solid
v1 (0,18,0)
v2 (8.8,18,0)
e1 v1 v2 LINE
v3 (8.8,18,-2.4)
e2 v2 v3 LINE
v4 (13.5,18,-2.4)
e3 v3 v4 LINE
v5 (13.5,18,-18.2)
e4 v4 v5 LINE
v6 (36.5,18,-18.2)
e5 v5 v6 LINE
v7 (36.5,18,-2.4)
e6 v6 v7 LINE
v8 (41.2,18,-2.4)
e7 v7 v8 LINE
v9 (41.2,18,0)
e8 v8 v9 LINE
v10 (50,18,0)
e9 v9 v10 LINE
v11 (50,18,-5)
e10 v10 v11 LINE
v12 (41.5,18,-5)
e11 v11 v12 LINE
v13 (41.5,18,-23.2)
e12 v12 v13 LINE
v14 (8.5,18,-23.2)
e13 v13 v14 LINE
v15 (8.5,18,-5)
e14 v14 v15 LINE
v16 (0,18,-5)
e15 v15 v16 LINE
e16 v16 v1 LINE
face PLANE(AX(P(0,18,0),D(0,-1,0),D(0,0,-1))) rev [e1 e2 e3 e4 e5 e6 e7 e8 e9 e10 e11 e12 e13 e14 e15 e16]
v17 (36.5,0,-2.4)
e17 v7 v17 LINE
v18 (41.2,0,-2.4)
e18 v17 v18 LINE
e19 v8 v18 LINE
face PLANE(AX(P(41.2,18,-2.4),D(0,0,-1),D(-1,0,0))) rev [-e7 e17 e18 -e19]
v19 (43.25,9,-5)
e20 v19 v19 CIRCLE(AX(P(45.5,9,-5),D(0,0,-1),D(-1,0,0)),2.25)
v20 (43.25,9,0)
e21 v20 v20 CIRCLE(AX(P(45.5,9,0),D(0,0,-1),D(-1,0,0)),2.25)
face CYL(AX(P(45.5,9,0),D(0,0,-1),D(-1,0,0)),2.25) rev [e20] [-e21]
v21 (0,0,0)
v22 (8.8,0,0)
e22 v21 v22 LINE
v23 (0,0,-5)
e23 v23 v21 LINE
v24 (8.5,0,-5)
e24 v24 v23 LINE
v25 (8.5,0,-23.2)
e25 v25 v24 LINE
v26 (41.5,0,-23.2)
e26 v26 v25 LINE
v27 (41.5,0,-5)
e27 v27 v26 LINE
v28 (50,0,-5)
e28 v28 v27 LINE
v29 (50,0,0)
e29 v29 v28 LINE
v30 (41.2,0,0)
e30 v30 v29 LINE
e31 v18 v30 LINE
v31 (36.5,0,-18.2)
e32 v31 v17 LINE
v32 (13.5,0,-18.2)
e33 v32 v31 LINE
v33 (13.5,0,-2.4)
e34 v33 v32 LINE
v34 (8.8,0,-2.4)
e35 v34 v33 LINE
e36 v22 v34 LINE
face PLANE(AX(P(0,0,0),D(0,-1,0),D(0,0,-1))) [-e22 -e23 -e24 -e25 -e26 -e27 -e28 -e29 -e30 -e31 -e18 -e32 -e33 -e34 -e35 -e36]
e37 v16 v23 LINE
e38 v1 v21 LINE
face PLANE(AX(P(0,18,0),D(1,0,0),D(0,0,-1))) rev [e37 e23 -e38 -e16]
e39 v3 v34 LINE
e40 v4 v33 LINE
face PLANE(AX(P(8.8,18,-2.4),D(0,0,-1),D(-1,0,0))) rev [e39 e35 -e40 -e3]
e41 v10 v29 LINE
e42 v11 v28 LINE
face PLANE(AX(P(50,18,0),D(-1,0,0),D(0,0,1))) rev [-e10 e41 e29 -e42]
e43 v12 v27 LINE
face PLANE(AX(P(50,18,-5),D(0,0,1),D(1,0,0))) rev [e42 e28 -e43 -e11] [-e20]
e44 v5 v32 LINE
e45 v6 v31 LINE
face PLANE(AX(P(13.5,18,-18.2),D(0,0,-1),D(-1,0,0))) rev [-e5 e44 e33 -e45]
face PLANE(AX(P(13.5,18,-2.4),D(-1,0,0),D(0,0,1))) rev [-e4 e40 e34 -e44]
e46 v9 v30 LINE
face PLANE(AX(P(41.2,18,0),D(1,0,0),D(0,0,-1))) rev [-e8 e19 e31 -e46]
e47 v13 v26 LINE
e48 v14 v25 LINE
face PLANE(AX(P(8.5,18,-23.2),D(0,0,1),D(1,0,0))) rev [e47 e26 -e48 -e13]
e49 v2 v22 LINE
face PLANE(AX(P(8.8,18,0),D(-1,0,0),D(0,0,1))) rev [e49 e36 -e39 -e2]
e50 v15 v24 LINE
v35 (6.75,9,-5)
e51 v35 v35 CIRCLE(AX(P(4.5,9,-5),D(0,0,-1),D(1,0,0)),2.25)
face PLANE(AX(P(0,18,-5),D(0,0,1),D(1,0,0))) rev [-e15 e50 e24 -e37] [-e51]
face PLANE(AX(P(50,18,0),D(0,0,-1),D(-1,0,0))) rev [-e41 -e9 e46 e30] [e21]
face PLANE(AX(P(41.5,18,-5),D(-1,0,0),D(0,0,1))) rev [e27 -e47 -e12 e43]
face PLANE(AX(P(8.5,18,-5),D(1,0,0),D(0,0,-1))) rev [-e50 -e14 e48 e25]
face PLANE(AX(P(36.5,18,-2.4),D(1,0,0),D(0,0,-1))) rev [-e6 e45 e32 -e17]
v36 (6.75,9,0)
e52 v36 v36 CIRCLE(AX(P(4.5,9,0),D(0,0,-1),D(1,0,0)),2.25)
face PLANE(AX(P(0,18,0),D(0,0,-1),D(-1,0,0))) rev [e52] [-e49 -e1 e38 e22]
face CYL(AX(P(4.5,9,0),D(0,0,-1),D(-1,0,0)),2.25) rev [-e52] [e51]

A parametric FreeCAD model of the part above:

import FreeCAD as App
import Part
import Sketcher


def add_polygon(sketch, points):
    """Adds a closed chain of lines whose ends are joined by coincident constraints."""
    first, n = sketch.GeometryCount, len(points)
    for a, b in zip(points, points[1:] + points[:1]):
        sketch.addGeometry(Part.LineSegment(App.Vector(*a, 0), App.Vector(*b, 0)), False)
    for i in range(n):
        sketch.addConstraint(Sketcher.Constraint("Coincident", first + i, 2, first + (i + 1) % n, 1))

doc = App.newDocument("Part")
body = doc.addObject("PartDesign::Body", "Body")

sketch1 = doc.addObject("Sketcher::SketchObject", "Sketch")
body.addObject(sketch1)
sketch1.AttachmentSupport = (doc.XZ_Plane, [""])
sketch1.MapMode = "FlatFace"
add_polygon(sketch1, [(0, 0), (8.8, 0), (8.8, -2.4), (13.5, -2.4), (13.5, -18.2), (36.5, -18.2), (36.5, -2.4), (41.2, -2.4), (41.2, 0), (50, 0), (50, -5), (41.5, -5), (41.5, -23.2), (8.5, -23.2), (8.5, -5), (0, -5)])
sketch1.addConstraint(Sketcher.Constraint("Horizontal", 0))
sketch1.addConstraint(Sketcher.Constraint("Vertical", 1))
sketch1.addConstraint(Sketcher.Constraint("Horizontal", 2))
sketch1.addConstraint(Sketcher.Constraint("Vertical", 3))
sketch1.addConstraint(Sketcher.Constraint("Horizontal", 4))
sketch1.addConstraint(Sketcher.Constraint("Vertical", 5))
sketch1.addConstraint(Sketcher.Constraint("Horizontal", 6))
sketch1.addConstraint(Sketcher.Constraint("Vertical", 7))
sketch1.addConstraint(Sketcher.Constraint("Horizontal", 8))
sketch1.addConstraint(Sketcher.Constraint("Vertical", 9))
sketch1.addConstraint(Sketcher.Constraint("Horizontal", 10))
sketch1.addConstraint(Sketcher.Constraint("Vertical", 11))
sketch1.addConstraint(Sketcher.Constraint("Horizontal", 12))
sketch1.addConstraint(Sketcher.Constraint("Vertical", 13))
sketch1.addConstraint(Sketcher.Constraint("Horizontal", 14))
sketch1.addConstraint(Sketcher.Constraint("Vertical", 15))
sketch1.addConstraint(Sketcher.Constraint("Coincident", 15, 2, -1, 1))
sketch1.addConstraint(Sketcher.Constraint("PointOnObject", 7, 2, -1))
sketch1.addConstraint(Sketcher.Constraint("Horizontal", 2, 2, 5, 2))
sketch1.addConstraint(Sketcher.Constraint("Horizontal", 10, 2, 13, 2))
sketch1.addConstraint(Sketcher.Constraint("Equal", 2, 6))
sketch1.addConstraint(Sketcher.Constraint("Equal", 0, 8))
sketch1.addConstraint(Sketcher.Constraint("Equal", 10, 14))
sketch1.addConstraint(Sketcher.Constraint("DistanceX", 4, 1, 4, 2, 23.0))
sketch1.addConstraint(Sketcher.Constraint("DistanceX", 12, 2, 12, 1, 33.0))
sketch1.addConstraint(Sketcher.Constraint("DistanceY", 9, 2, 9, 1, 5.0))
sketch1.addConstraint(Sketcher.Constraint("DistanceX", 0, 1, 0, 2, 8.8))
sketch1.addConstraint(Sketcher.Constraint("DistanceX", 2, 1, 2, 2, 4.7))
sketch1.addConstraint(Sketcher.Constraint("DistanceY", 1, 2, 1, 1, 2.4))
sketch1.addConstraint(Sketcher.Constraint("DistanceY", 3, 2, 3, 1, 15.8))
sketch1.addConstraint(Sketcher.Constraint("DistanceY", 11, 2, 11, 1, 18.2))
pad1 = doc.addObject("PartDesign::Pad", "Pad")
body.addObject(pad1)
pad1.Profile = sketch1
pad1.Length = 18
pad1.Reversed = True

sketch2 = doc.addObject("Sketcher::SketchObject", "Sketch001")
body.addObject(sketch2)
sketch2.AttachmentSupport = (doc.XY_Plane, [""])
sketch2.MapMode = "FlatFace"
sketch2.AttachmentOffset = App.Placement(App.Vector(0, 0, -5), App.Rotation())
sketch2.addGeometry(Part.Circle(App.Vector(45.5, 9, 0), App.Vector(0, 0, 1), 2.2), False)
sketch2.addGeometry(Part.Circle(App.Vector(4.5, 9, 0), App.Vector(0, 0, 1), 2.2), False)
sketch2.addConstraint(Sketcher.Constraint("Equal", 0, 1))
sketch2.addConstraint(Sketcher.Constraint("Horizontal", 0, 3, 1, 3))
sketch2.addConstraint(Sketcher.Constraint("Diameter", 0, 4.5))
sketch2.addConstraint(Sketcher.Constraint("DistanceY", -1, 1, 0, 3, 9.0))
sketch2.addConstraint(Sketcher.Constraint("DistanceX", 1, 3, 0, 3, 41.0))
sketch2.addConstraint(Sketcher.Constraint("DistanceX", -1, 1, 0, 3, 45.5))
pocket1 = doc.addObject("PartDesign::Pocket", "Pocket")
body.addObject(pocket1)
pocket1.Profile = sketch2
pocket1.Type = "ThroughAll"
pocket1.Reversed = True

doc.recompute()
